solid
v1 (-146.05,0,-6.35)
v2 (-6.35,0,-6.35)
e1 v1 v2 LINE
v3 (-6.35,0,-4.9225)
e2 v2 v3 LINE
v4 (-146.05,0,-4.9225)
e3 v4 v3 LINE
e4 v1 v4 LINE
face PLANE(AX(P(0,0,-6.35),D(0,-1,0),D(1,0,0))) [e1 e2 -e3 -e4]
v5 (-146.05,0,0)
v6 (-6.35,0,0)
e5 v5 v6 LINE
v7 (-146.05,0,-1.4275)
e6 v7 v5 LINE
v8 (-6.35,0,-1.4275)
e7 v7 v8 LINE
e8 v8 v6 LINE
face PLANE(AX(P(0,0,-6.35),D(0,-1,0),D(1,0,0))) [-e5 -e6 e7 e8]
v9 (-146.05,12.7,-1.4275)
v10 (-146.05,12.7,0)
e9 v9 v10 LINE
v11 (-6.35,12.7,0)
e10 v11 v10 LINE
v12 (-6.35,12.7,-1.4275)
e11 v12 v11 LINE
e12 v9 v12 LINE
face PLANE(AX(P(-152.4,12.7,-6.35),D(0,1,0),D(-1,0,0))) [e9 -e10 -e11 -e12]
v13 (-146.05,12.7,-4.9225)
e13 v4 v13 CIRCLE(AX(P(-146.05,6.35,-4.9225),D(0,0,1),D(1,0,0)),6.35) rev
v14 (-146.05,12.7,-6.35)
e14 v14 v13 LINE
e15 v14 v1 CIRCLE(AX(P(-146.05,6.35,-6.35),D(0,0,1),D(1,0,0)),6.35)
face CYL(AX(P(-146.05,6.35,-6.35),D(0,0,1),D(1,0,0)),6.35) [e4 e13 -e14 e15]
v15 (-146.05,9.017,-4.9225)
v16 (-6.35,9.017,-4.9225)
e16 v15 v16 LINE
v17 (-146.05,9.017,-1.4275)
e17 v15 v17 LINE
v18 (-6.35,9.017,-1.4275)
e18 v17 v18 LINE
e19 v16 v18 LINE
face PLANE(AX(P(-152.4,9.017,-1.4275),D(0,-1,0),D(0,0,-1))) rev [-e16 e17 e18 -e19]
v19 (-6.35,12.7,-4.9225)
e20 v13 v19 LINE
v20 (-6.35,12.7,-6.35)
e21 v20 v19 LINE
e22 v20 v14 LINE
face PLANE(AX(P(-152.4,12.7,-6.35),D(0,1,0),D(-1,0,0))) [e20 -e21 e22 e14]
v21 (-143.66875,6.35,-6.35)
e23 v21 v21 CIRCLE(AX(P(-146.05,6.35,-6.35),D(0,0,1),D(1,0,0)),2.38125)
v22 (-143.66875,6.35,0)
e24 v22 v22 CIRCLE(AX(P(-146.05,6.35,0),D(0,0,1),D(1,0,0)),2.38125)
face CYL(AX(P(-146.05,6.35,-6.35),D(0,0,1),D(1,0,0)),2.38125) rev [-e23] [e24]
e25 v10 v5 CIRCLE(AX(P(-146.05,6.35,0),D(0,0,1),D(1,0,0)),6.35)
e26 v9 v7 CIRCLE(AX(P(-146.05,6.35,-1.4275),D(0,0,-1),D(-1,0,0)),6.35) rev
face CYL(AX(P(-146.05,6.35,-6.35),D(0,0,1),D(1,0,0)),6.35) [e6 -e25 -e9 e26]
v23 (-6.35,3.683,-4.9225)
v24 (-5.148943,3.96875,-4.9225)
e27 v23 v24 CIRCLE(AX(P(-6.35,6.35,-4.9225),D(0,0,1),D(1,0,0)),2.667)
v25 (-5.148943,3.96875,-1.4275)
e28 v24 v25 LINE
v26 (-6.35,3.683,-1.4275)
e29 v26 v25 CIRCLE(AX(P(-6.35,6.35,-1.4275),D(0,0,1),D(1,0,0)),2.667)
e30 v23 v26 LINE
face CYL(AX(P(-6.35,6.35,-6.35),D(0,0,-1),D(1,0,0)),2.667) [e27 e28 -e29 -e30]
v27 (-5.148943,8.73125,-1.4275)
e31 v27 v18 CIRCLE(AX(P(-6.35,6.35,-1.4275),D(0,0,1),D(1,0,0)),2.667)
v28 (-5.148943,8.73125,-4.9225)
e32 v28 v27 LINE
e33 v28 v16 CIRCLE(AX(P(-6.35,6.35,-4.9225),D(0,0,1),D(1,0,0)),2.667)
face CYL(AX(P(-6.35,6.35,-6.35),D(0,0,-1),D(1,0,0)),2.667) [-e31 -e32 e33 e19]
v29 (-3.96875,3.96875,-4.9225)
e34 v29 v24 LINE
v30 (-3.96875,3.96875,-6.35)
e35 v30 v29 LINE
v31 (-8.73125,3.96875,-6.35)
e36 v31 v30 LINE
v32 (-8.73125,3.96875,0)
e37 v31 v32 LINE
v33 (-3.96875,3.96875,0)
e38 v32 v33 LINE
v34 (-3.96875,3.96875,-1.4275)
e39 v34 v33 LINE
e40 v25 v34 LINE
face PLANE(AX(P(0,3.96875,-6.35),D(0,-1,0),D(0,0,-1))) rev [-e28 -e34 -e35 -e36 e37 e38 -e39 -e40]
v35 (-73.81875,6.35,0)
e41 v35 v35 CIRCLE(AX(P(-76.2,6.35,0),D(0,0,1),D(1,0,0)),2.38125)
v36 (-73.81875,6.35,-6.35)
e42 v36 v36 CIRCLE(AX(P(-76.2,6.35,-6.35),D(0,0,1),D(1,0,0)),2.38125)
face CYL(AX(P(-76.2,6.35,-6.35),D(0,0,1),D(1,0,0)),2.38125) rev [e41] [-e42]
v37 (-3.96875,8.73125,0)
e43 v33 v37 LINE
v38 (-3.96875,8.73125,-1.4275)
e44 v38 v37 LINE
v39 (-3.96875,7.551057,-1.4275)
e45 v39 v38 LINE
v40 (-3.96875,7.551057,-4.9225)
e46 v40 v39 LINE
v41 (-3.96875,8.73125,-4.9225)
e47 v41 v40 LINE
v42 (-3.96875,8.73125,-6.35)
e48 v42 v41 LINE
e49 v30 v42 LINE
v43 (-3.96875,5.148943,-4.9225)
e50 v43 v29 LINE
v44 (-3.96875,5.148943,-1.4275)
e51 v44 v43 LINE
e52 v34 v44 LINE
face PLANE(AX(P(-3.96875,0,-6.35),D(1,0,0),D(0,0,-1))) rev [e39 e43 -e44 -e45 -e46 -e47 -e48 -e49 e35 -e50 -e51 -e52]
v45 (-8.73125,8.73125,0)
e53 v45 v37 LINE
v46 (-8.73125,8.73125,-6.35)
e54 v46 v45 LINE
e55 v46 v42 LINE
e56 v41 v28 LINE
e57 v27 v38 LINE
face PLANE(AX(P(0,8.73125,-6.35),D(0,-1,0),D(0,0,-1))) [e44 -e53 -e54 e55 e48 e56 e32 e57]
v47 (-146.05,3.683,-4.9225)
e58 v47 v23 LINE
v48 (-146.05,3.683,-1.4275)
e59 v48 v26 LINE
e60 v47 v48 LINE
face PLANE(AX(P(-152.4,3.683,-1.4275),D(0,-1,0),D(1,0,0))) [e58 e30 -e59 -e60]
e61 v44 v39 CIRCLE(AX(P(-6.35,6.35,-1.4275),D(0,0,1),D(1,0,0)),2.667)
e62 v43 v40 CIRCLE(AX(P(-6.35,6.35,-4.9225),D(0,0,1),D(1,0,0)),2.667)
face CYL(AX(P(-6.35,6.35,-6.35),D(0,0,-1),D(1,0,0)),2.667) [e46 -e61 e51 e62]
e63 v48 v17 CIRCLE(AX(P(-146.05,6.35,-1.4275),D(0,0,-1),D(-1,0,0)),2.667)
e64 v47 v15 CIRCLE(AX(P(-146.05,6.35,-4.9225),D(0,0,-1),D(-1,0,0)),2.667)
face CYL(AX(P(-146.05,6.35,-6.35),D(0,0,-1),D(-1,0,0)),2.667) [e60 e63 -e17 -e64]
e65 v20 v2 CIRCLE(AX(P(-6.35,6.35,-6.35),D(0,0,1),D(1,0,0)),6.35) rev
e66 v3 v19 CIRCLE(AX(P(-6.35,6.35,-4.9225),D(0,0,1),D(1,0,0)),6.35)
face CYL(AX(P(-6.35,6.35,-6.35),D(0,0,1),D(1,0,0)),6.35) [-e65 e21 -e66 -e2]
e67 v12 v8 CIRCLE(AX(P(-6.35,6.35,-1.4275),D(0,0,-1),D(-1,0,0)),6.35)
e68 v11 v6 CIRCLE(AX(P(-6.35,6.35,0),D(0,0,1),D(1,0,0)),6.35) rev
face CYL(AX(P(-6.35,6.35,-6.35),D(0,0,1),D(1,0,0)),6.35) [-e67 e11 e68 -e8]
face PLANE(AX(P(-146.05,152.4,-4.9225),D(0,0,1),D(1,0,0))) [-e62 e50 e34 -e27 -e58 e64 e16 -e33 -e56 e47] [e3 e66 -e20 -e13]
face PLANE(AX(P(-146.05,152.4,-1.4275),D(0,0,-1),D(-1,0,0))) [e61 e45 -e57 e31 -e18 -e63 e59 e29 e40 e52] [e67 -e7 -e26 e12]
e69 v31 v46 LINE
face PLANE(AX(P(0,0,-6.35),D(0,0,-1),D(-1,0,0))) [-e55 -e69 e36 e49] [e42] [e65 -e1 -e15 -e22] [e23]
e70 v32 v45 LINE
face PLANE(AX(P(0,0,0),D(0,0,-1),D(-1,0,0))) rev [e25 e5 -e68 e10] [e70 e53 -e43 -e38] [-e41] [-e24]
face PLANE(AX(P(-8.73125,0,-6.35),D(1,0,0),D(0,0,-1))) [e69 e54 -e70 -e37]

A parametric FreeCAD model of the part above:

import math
import FreeCAD as App
import Part
import Sketcher
Q = App.Units.Quantity

doc = App.newDocument("Part")
body = doc.addObject("PartDesign::Body", "Body")

# Sketch on XY plane
sketch1 = doc.addObject("Sketcher::SketchObject", "Sketch")
body.addObject(sketch1)
sketch1.AttachmentSupport = (doc.XY_Plane, [""])
sketch1.MapMode = "FlatFace"
sketch1.addGeometry(Part.LineSegment(App.Vector(-152.4, 12.7, 0), App.Vector(-152.4, 0, 0)), False)
sketch1.addGeometry(Part.LineSegment(App.Vector(-152.4, 0, 0), App.Vector(0, 0, 0)), False)
sketch1.addGeometry(Part.LineSegment(App.Vector(0, 0, 0), App.Vector(0, 12.7, 0)), False)
sketch1.addGeometry(Part.LineSegment(App.Vector(0, 12.7, 0), App.Vector(-152.4, 12.7, 0)), False)
sketch1.addConstraint(Sketcher.Constraint("Coincident", 0, 2, 1, 1))
sketch1.addConstraint(Sketcher.Constraint("Coincident", 1, 2, 2, 1))
sketch1.addConstraint(Sketcher.Constraint("Coincident", 2, 2, 3, 1))
sketch1.addConstraint(Sketcher.Constraint("Coincident", 3, 2, 0, 1))
sketch1.addConstraint(Sketcher.Constraint("Vertical", 0))
sketch1.addConstraint(Sketcher.Constraint("Horizontal", 1))
sketch1.addConstraint(Sketcher.Constraint("Vertical", 2))
sketch1.addConstraint(Sketcher.Constraint("Horizontal", 3))
sketch1.addConstraint(Sketcher.Constraint("Coincident", 1, 2, -1, 1))
sketch1.addConstraint(Sketcher.Constraint("DistanceX", 1, 1, 1, 2, Q("6 in")))
sketch1.addConstraint(Sketcher.Constraint("DistanceY", 0, 2, 0, 1, Q("0.5 in")))
pad1 = doc.addObject("PartDesign::Pad", "Pad")
body.addObject(pad1)
pad1.Profile = sketch1
pad1.Length = Q("0.25 in")
pad1.Reversed = True

# Sketch on XY plane
sketch2 = doc.addObject("Sketcher::SketchObject", "Sketch001")
body.addObject(sketch2)
sketch2.AttachmentSupport = (doc.XY_Plane, [""])
sketch2.MapMode = "FlatFace"
sketch2.addGeometry(Part.Circle(App.Vector(-146.05, 6.35, 0), App.Vector(0, 0, 1), 2.38125), False)
sketch2.addGeometry(Part.Circle(App.Vector(-76.2, 6.35, 0), App.Vector(0, 0, 1), 2.38125), False)
sketch2.addGeometry(Part.LineSegment(App.Vector(-8.73125, 8.73125, 0), App.Vector(-8.73125, 3.96875, 0)), False)
sketch2.addGeometry(Part.LineSegment(App.Vector(-8.73125, 3.96875, 0), App.Vector(-3.96875, 3.96875, 0)), False)
sketch2.addGeometry(Part.LineSegment(App.Vector(-3.96875, 3.96875, 0), App.Vector(-3.96875, 8.73125, 0)), False)
sketch2.addGeometry(Part.LineSegment(App.Vector(-3.96875, 8.73125, 0), App.Vector(-8.73125, 8.73125, 0)), False)
sketch2.addGeometry(Part.LineSegment(App.Vector(0, 12.7, 0), App.Vector(-6.35, 12.7, 0)), False)
sketch2.addGeometry(Part.ArcOfCircle(Part.Circle(App.Vector(-6.35, 6.35, 0), App.Vector(0, 0, 1), 6.35), math.radians(0), math.radians(90)), False)
sketch2.addGeometry(Part.LineSegment(App.Vector(0, 6.35, 0), App.Vector(0, 12.7, 0)), False)
sketch2.addGeometry(Part.LineSegment(App.Vector(0, 0, 0), App.Vector(0, 6.35, 0)), False)
sketch2.addGeometry(Part.ArcOfCircle(Part.Circle(App.Vector(-6.35, 6.35, 0), App.Vector(0, 0, 1), 6.35), math.radians(-90), math.radians(0)), False)
sketch2.addGeometry(Part.LineSegment(App.Vector(-6.35, 0, 0), App.Vector(0, 0, 0)), False)
sketch2.addGeometry(Part.ArcOfCircle(Part.Circle(App.Vector(-146.05, 6.35, 0), App.Vector(0, 0, 1), 6.35), math.radians(90), math.radians(180)), False)
sketch2.addGeometry(Part.LineSegment(App.Vector(-146.05, 12.7, 0), App.Vector(-152.4, 12.7, 0)), False)
sketch2.addGeometry(Part.LineSegment(App.Vector(-152.4, 12.7, 0), App.Vector(-152.4, 6.35, 0)), False)
sketch2.addGeometry(Part.ArcOfCircle(Part.Circle(App.Vector(-146.05, 6.35, 0), App.Vector(0, 0, 1), 6.35), math.radians(180), math.radians(270)), False)
sketch2.addGeometry(Part.LineSegment(App.Vector(-152.4, 6.35, 0), App.Vector(-152.4, 0, 0)), False)
sketch2.addGeometry(Part.LineSegment(App.Vector(-152.4, 0, 0), App.Vector(-146.05, 0, 0)), False)
sketch2.addConstraint(Sketcher.Constraint("Coincident", 2, 2, 3, 1))
sketch2.addConstraint(Sketcher.Constraint("Coincident", 3, 2, 4, 1))
sketch2.addConstraint(Sketcher.Constraint("Coincident", 4, 2, 5, 1))
sketch2.addConstraint(Sketcher.Constraint("Coincident", 5, 2, 2, 1))
sketch2.addConstraint(Sketcher.Constraint("Tangent", 6, 2, 7, 2))
sketch2.addConstraint(Sketcher.Constraint("Tangent", 7, 1, 8, 1))
sketch2.addConstraint(Sketcher.Constraint("Coincident", 8, 2, 6, 1))
sketch2.addConstraint(Sketcher.Constraint("Tangent", 9, 2, 10, 2))
sketch2.addConstraint(Sketcher.Constraint("Tangent", 10, 1, 11, 1))
sketch2.addConstraint(Sketcher.Constraint("Coincident", 11, 2, 9, 1))
sketch2.addConstraint(Sketcher.Constraint("Tangent", 12, 1, 13, 1))
sketch2.addConstraint(Sketcher.Constraint("Coincident", 13, 2, 14, 1))
sketch2.addConstraint(Sketcher.Constraint("Tangent", 14, 2, 12, 2))
sketch2.addConstraint(Sketcher.Constraint("Tangent", 15, 1, 16, 1))
sketch2.addConstraint(Sketcher.Constraint("Coincident", 16, 2, 17, 1))
sketch2.addConstraint(Sketcher.Constraint("Tangent", 17, 2, 15, 2))
sketch2.addConstraint(Sketcher.Constraint("Vertical", 2))
sketch2.addConstraint(Sketcher.Constraint("Horizontal", 3))
sketch2.addConstraint(Sketcher.Constraint("Vertical", 4))
sketch2.addConstraint(Sketcher.Constraint("Horizontal", 5))
sketch2.addConstraint(Sketcher.Constraint("Horizontal", 6))
sketch2.addConstraint(Sketcher.Constraint("Vertical", 8))
sketch2.addConstraint(Sketcher.Constraint("Vertical", 9))
sketch2.addConstraint(Sketcher.Constraint("Horizontal", 11))
sketch2.addConstraint(Sketcher.Constraint("Horizontal", 13))
sketch2.addConstraint(Sketcher.Constraint("Vertical", 14))
sketch2.addConstraint(Sketcher.Constraint("Vertical", 16))
sketch2.addConstraint(Sketcher.Constraint("Horizontal", 17))
sketch2.addConstraint(Sketcher.Constraint("Coincident", 11, 2, -1, 1))
sketch2.addConstraint(Sketcher.Constraint("Coincident", 10, 3, 7, 3))
sketch2.addConstraint(Sketcher.Constraint("Coincident", 12, 3, 0, 3))
sketch2.addConstraint(Sketcher.Constraint("Coincident", 15, 3, 0, 3))
sketch2.addConstraint(Sketcher.Constraint("Equal", 0, 1))
sketch2.addConstraint(Sketcher.Constraint("Equal", 7, 10))
sketch2.addConstraint(Sketcher.Constraint("Equal", 10, 12))
sketch2.addConstraint(Sketcher.Constraint("Equal", 12, 15))
sketch2.addConstraint(Sketcher.Constraint("PointOnObject", 16, 2, -1))
sketch2.addConstraint(Sketcher.Constraint("Horizontal", 0, 3, 1, 3))
sketch2.addConstraint(Sketcher.Constraint("Equal", 5, 2))
sketch2.addConstraint(Sketcher.Constraint("Radius", 7, Q("0.25 in")))
sketch2.addConstraint(Sketcher.Constraint("Diameter", 0, Q("0.1875 in")))
sketch2.addConstraint(Sketcher.Constraint("DistanceX", 1, 3, -1, 1, Q("3 in")))
sketch2.addConstraint(Sketcher.Constraint("DistanceX", 13, 2, -1, 1, Q("6 in")))
sketch2.addConstraint(Sketcher.Constraint("DistanceX", 3, 1, 3, 2, Q("0.1875 in")))
sketch2.addConstraint(Sketcher.Constraint("DistanceX", 2, 2, -1, 1, Q("0.34375 in")))
sketch2.addConstraint(Sketcher.Constraint("DistanceY", -1, 1, 2, 2, Q("0.15625 in")))
pocket1 = doc.addObject("PartDesign::Pocket", "Pocket")
body.addObject(pocket1)
pocket1.Profile = sketch2
pocket1.Type = "ThroughAll"

# Sketch on XZ plane
sketch3 = doc.addObject("Sketcher::SketchObject", "Sketch002")
body.addObject(sketch3)
sketch3.AttachmentSupport = (doc.XZ_Plane, [""])
sketch3.MapMode = "FlatFace"
sketch3.AttachmentOffset = App.Placement(App.Vector(0, 0, -0.25 * 25.4), App.Rotation())
sketch3.addGeometry(Part.LineSegment(App.Vector(-166.570765, -1.4275, 0), App.Vector(-148.717, -1.4275, 0)), False)
sketch3.addGeometry(Part.LineSegment(App.Vector(-148.717, -1.4275, 0), App.Vector(-148.717, -4.9225, 0)), False)
sketch3.addGeometry(Part.LineSegment(App.Vector(-148.717, -4.9225, 0), App.Vector(-166.570765, -4.9225, 0)), False)
sketch3.addGeometry(Part.LineSegment(App.Vector(-166.570765, -4.9225, 0), App.Vector(-166.570765, -1.4275, 0)), False)
sketch3.addGeometry(Part.LineSegment(App.Vector(-146.05, -4.9225, 0), App.Vector(-146.05, -1.4275, 0)), True)  # axis
sketch3.addConstraint(Sketcher.Constraint("Coincident", 0, 2, 1, 1))
sketch3.addConstraint(Sketcher.Constraint("Coincident", 1, 2, 2, 1))
sketch3.addConstraint(Sketcher.Constraint("Coincident", 2, 2, 3, 1))
sketch3.addConstraint(Sketcher.Constraint("Coincident", 3, 2, 0, 1))
sketch3.addConstraint(Sketcher.Constraint("Horizontal", 0))
sketch3.addConstraint(Sketcher.Constraint("Vertical", 1))
sketch3.addConstraint(Sketcher.Constraint("Horizontal", 2))
sketch3.addConstraint(Sketcher.Constraint("Vertical", 3))
sketch3.addConstraint(Sketcher.Constraint("Vertical", 4))
sketch3.addConstraint(Sketcher.Constraint("Horizontal", 2, 2, 4, 1))
sketch3.addConstraint(Sketcher.Constraint("Horizontal", 3, 2, 4, 2))
sketch3.addConstraint(Sketcher.Constraint("DistanceX", 4, 1, -1, 1, Q("5.75 in")))
sketch3.addConstraint(Sketcher.Constraint("DistanceX", 0, 2, -1, 1, Q("5.855 in")))
sketch3.addConstraint(Sketcher.Constraint("DistanceY", 1, 2, 1, 1, Q("3.495 mm")))
sketch3.addConstraint(Sketcher.Constraint("DistanceY", 0, 2, -1, 1, Q("1.4275 mm")))
sketch3.addConstraint(Sketcher.Constraint("DistanceX", 0, 1, 0, 2, Q("17.853765 mm")))
groove = doc.addObject("PartDesign::Groove", "Groove")
body.addObject(groove)
groove.Profile = sketch3
groove.ReferenceAxis = (sketch3, ["Axis0"])
groove.Angle = 90

# Sketch on XZ plane
sketch4 = doc.addObject("Sketcher::SketchObject", "Sketch003")
body.addObject(sketch4)
sketch4.AttachmentSupport = (doc.XZ_Plane, [""])
sketch4.MapMode = "FlatFace"
sketch4.AttachmentOffset = App.Placement(App.Vector(0, 0, -0.25 * 25.4), App.Rotation())
sketch4.addGeometry(Part.LineSegment(App.Vector(-166.570765, -1.4275, 0), App.Vector(-148.717, -1.4275, 0)), False)
sketch4.addGeometry(Part.LineSegment(App.Vector(-148.717, -1.4275, 0), App.Vector(-148.717, -4.9225, 0)), False)
sketch4.addGeometry(Part.LineSegment(App.Vector(-148.717, -4.9225, 0), App.Vector(-166.570765, -4.9225, 0)), False)
sketch4.addGeometry(Part.LineSegment(App.Vector(-166.570765, -4.9225, 0), App.Vector(-166.570765, -1.4275, 0)), False)
sketch4.addGeometry(Part.LineSegment(App.Vector(-146.05, -1.4275, 0), App.Vector(-146.05, -4.9225, 0)), True)  # axis
sketch4.addConstraint(Sketcher.Constraint("Coincident", 0, 2, 1, 1))
sketch4.addConstraint(Sketcher.Constraint("Coincident", 1, 2, 2, 1))
sketch4.addConstraint(Sketcher.Constraint("Coincident", 2, 2, 3, 1))
sketch4.addConstraint(Sketcher.Constraint("Coincident", 3, 2, 0, 1))
sketch4.addConstraint(Sketcher.Constraint("Horizontal", 0))
sketch4.addConstraint(Sketcher.Constraint("Vertical", 1))
sketch4.addConstraint(Sketcher.Constraint("Horizontal", 2))
sketch4.addConstraint(Sketcher.Constraint("Vertical", 3))
sketch4.addConstraint(Sketcher.Constraint("Vertical", 4))
sketch4.addConstraint(Sketcher.Constraint("Horizontal", 3, 2, 4, 1))
sketch4.addConstraint(Sketcher.Constraint("Horizontal", 2, 2, 4, 2))
sketch4.addConstraint(Sketcher.Constraint("DistanceX", 4, 1, -1, 1, Q("5.75 in")))
sketch4.addConstraint(Sketcher.Constraint("DistanceX", 0, 2, -1, 1, Q("5.855 in")))
sketch4.addConstraint(Sketcher.Constraint("DistanceY", 1, 2, 1, 1, Q("3.495 mm")))
sketch4.addConstraint(Sketcher.Constraint("DistanceY", 0, 2, -1, 1, Q("1.4275 mm")))
sketch4.addConstraint(Sketcher.Constraint("DistanceX", 0, 1, 0, 2, Q("17.853765 mm")))
groove2 = doc.addObject("PartDesign::Groove", "Groove001")
body.addObject(groove2)
groove2.Profile = sketch4
groove2.ReferenceAxis = (sketch4, ["Axis0"])
groove2.Angle = 90
doc.recompute()

datumplane = doc.addObject("PartDesign::Plane", "DatumPlane")
body.addObject(datumplane)
datumplane.AttachmentSupport = (doc.YZ_Plane, [""])
datumplane.MapMode = "FlatFace"
datumplane.AttachmentOffset = App.Placement(App.Vector(0, 0, -3 * 25.4), App.Rotation())
mirrored = doc.addObject("PartDesign::Mirrored", "Mirrored")
body.addObject(mirrored)
mirrored.Originals = [groove, groove2]
mirrored.MirrorPlane = (datumplane, [""])
body.Tip = mirrored

# Sketch on YZ plane
sketch5 = doc.addObject("Sketcher::SketchObject", "Sketch004")
body.addObject(sketch5)
sketch5.AttachmentSupport = (doc.YZ_Plane, [""])
sketch5.MapMode = "FlatFace"
sketch5.addGeometry(Part.LineSegment(App.Vector(12.7, -1.4275, 0), App.Vector(9.017, -1.4275, 0)), False)
sketch5.addGeometry(Part.LineSegment(App.Vector(9.017, -1.4275, 0), App.Vector(9.017, -4.9225, 0)), False)
sketch5.addGeometry(Part.LineSegment(App.Vector(9.017, -4.9225, 0), App.Vector(12.7, -4.9225, 0)), False)
sketch5.addGeometry(Part.LineSegment(App.Vector(12.7, -4.9225, 0), App.Vector(12.7, -1.4275, 0)), False)
sketch5.addConstraint(Sketcher.Constraint("Coincident", 0, 2, 1, 1))
sketch5.addConstraint(Sketcher.Constraint("Coincident", 1, 2, 2, 1))
sketch5.addConstraint(Sketcher.Constraint("Coincident", 2, 2, 3, 1))
sketch5.addConstraint(Sketcher.Constraint("Coincident", 3, 2, 0, 1))
sketch5.addConstraint(Sketcher.Constraint("Horizontal", 0))
sketch5.addConstraint(Sketcher.Constraint("Vertical", 1))
sketch5.addConstraint(Sketcher.Constraint("Horizontal", 2))
sketch5.addConstraint(Sketcher.Constraint("Vertical", 3))
sketch5.addConstraint(Sketcher.Constraint("DistanceX", -1, 1, 2, 2, Q("0.5 in")))
sketch5.addConstraint(Sketcher.Constraint("DistanceX", 0, 2, 0, 1, Q("0.145 in")))
sketch5.addConstraint(Sketcher.Constraint("DistanceY", 1, 2, 1, 1, Q("3.495 mm")))
sketch5.addConstraint(Sketcher.Constraint("DistanceY", 0, 2, -1, 1, Q("1.4275 mm")))
pocket2 = doc.addObject("PartDesign::Pocket", "Pocket001")
body.addObject(pocket2)
pocket2.Profile = sketch5
pocket2.Type = "ThroughAll"
doc.recompute()

datumplane2 = doc.addObject("PartDesign::Plane", "DatumPlane001")
body.addObject(datumplane2)
datumplane2.AttachmentSupport = (doc.XZ_Plane, [""])
datumplane2.MapMode = "FlatFace"
datumplane2.AttachmentOffset = App.Placement(App.Vector(0, 0, -0.25 * 25.4), App.Rotation())
mirrored2 = doc.addObject("PartDesign::Mirrored", "Mirrored001")
body.addObject(mirrored2)
mirrored2.Originals = [pocket2]
mirrored2.MirrorPlane = (datumplane2, [""])
body.Tip = mirrored2

doc.recompute()
